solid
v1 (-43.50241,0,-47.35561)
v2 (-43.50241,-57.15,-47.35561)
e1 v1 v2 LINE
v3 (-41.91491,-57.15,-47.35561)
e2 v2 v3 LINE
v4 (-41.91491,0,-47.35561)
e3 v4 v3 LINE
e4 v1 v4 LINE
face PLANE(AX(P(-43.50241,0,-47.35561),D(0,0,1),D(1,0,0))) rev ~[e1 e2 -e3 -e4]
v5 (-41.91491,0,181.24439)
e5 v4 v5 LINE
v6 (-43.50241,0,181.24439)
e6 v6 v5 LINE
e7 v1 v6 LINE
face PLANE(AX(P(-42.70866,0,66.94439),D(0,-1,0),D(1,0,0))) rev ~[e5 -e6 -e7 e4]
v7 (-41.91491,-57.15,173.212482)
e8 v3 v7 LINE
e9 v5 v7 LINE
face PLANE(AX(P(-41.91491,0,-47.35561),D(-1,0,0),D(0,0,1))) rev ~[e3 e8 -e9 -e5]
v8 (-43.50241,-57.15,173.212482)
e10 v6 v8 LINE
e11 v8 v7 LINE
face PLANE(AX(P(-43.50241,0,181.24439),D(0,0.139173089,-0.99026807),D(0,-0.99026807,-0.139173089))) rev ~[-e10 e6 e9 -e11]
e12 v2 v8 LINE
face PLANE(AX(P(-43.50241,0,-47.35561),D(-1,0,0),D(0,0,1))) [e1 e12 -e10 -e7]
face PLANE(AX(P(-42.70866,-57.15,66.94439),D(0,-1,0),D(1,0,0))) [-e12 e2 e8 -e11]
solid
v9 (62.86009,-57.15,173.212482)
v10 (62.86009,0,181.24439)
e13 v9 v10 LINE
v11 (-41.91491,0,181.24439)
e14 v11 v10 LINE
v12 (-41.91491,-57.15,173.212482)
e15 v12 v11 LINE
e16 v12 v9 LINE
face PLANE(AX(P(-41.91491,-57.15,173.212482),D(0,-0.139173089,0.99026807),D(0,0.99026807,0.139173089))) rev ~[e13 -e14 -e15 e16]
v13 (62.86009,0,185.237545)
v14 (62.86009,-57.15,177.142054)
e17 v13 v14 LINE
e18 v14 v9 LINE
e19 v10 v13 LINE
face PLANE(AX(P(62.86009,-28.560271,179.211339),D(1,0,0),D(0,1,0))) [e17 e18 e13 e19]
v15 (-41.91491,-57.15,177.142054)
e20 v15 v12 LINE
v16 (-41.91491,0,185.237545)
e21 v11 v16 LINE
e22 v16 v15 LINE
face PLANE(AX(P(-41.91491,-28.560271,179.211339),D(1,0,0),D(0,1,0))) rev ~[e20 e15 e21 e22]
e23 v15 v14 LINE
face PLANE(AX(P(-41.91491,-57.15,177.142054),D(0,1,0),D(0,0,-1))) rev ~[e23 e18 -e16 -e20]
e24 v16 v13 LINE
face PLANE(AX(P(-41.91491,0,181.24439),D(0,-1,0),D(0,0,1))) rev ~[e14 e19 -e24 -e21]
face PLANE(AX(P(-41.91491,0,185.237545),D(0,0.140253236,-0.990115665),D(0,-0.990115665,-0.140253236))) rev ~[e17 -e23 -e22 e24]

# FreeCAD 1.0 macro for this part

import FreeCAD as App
import Part
import Sketcher

V = App.Vector
Q = App.Units.Quantity

doc = App.newDocument("Part")
body = doc.addObject("PartDesign::Body", "Body")

# Sketch on XZ plane
sketch1 = doc.addObject("Sketcher::SketchObject", "Sketch")
body.addObject(sketch1)
sketch1.AttachmentSupport = (doc.XZ_Plane, [""])
sketch1.MapMode = "FlatFace"
sketch1.addGeometry(Part.LineSegment(V(-43.5, 181.2, 0), V(-43.5, -47.4, 0)), False)
sketch1.addGeometry(Part.LineSegment(V(-43.5, -47.4, 0), V(-41.9, -47.4, 0)), False)
sketch1.addGeometry(Part.LineSegment(V(-41.9, -47.4, 0), V(-41.9, 181.2, 0)), False)
sketch1.addGeometry(Part.LineSegment(V(-41.9, 181.2, 0), V(-43.5, 181.2, 0)), False)
sketch1.addConstraint(Sketcher.Constraint("Coincident", 0, 2, 1, 1))
sketch1.addConstraint(Sketcher.Constraint("Coincident", 1, 2, 2, 1))
sketch1.addConstraint(Sketcher.Constraint("Coincident", 2, 2, 3, 1))
sketch1.addConstraint(Sketcher.Constraint("Coincident", 3, 2, 0, 1))
sketch1.addConstraint(Sketcher.Constraint("Vertical", 0))
sketch1.addConstraint(Sketcher.Constraint("Horizontal", 1))
sketch1.addConstraint(Sketcher.Constraint("Vertical", 2))
sketch1.addConstraint(Sketcher.Constraint("Horizontal", 3))
sketch1.addConstraint(Sketcher.Constraint("DistanceY", 0, 2, 0, 1, Q("9 in")))
sketch1.addConstraint(Sketcher.Constraint("DistanceX", 1, 1, 1, 2, Q("0.0625 in")))
sketch1.addConstraint(Sketcher.Constraint("DistanceX", 0, 2, -1, 1, Q("43.50241 mm")))
sketch1.addConstraint(Sketcher.Constraint("DistanceY", 0, 2, -1, 1, Q("47.35561 mm")))
pad1 = doc.addObject("PartDesign::Pad", "Pad")
body.addObject(pad1)
pad1.Profile = sketch1
pad1.Length = Q("2.25 in")

# Sketch on YZ plane
sketch2 = doc.addObject("Sketcher::SketchObject", "Sketch001")
body.addObject(sketch2)
sketch2.AttachmentSupport = (doc.YZ_Plane, [""])
sketch2.MapMode = "FlatFace"
sketch2.AttachmentOffset = App.Placement(V(0, 0, -43.50241), App.Rotation())
sketch2.addGeometry(Part.LineSegment(V(-57, 181, 0), V(0, 181, 0)), False)
sketch2.addGeometry(Part.LineSegment(V(0, 181, 0), V(-57, 173, 0)), False)
sketch2.addGeometry(Part.LineSegment(V(-57, 173, 0), V(-57, 181, 0)), False)
sketch2.addConstraint(Sketcher.Constraint("Coincident", 0, 2, 1, 1))
sketch2.addConstraint(Sketcher.Constraint("Coincident", 1, 2, 2, 1))
sketch2.addConstraint(Sketcher.Constraint("Coincident", 2, 2, 0, 1))
sketch2.addConstraint(Sketcher.Constraint("Horizontal", 0))
sketch2.addConstraint(Sketcher.Constraint("Vertical", 2))
sketch2.addConstraint(Sketcher.Constraint("PointOnObject", 0, 2, -2))
sketch2.addConstraint(Sketcher.Constraint("Angle", 1, Q("-172.000001 deg")))
sketch2.addConstraint(Sketcher.Constraint("DistanceX", 0, 1, 0, 2, Q("2.25 in")))
sketch2.addConstraint(Sketcher.Constraint("DistanceY", -1, 1, 0, 2, Q("181.24439 mm")))
pocket1 = doc.addObject("PartDesign::Pocket", "Pocket")
body.addObject(pocket1)
pocket1.Profile = sketch2
pocket1.Type = "ThroughAll"
pocket1.Reversed = True
body2 = doc.addObject("PartDesign::Body", "Body001")

# Sketch on YZ plane
sketch3 = doc.addObject("Sketcher::SketchObject", "Sketch002")
body2.addObject(sketch3)
sketch3.AttachmentSupport = (doc.getObject("YZ_Plane001"), [""])
sketch3.MapMode = "FlatFace"
sketch3.AttachmentOffset = App.Placement(V(0, 0, -41.91491), App.Rotation())
sketch3.addGeometry(Part.LineSegment(V(-57.1, 177.1, 0), V(-57.1, 173.2, 0)), False)
sketch3.addGeometry(Part.LineSegment(V(-57.1, 173.2, 0), V(0, 181.2, 0)), False)
sketch3.addGeometry(Part.LineSegment(V(0, 181.2, 0), V(0, 185.2, 0)), False)
sketch3.addGeometry(Part.LineSegment(V(0, 185.2, 0), V(-57.1, 177.1, 0)), False)
sketch3.addConstraint(Sketcher.Constraint("Coincident", 0, 2, 1, 1))
sketch3.addConstraint(Sketcher.Constraint("Coincident", 1, 2, 2, 1))
sketch3.addConstraint(Sketcher.Constraint("Coincident", 2, 2, 3, 1))
sketch3.addConstraint(Sketcher.Constraint("Coincident", 3, 2, 0, 1))
sketch3.addConstraint(Sketcher.Constraint("Vertical", 0))
sketch3.addConstraint(Sketcher.Constraint("Vertical", 2))
sketch3.addConstraint(Sketcher.Constraint("PointOnObject", 1, 2, -2))
sketch3.addConstraint(Sketcher.Constraint("Angle", 1, Q("7.999999 deg")))
sketch3.addConstraint(Sketcher.Constraint("DistanceX", 0, 2, -1, 1, Q("2.25 in")))
sketch3.addConstraint(Sketcher.Constraint("Distance", 3, Q("57.720529 mm")))
sketch3.addConstraint(Sketcher.Constraint("DistanceY", 0, 2, 0, 1, Q("3.929572 mm")))
sketch3.addConstraint(Sketcher.Constraint("DistanceY", -1, 1, 0, 2, Q("173.212482 mm")))
pad2 = doc.addObject("PartDesign::Pad", "Pad001")
body2.addObject(pad2)
pad2.Profile = sketch3
pad2.Length = Q("4.125 in")

doc.recompute()
